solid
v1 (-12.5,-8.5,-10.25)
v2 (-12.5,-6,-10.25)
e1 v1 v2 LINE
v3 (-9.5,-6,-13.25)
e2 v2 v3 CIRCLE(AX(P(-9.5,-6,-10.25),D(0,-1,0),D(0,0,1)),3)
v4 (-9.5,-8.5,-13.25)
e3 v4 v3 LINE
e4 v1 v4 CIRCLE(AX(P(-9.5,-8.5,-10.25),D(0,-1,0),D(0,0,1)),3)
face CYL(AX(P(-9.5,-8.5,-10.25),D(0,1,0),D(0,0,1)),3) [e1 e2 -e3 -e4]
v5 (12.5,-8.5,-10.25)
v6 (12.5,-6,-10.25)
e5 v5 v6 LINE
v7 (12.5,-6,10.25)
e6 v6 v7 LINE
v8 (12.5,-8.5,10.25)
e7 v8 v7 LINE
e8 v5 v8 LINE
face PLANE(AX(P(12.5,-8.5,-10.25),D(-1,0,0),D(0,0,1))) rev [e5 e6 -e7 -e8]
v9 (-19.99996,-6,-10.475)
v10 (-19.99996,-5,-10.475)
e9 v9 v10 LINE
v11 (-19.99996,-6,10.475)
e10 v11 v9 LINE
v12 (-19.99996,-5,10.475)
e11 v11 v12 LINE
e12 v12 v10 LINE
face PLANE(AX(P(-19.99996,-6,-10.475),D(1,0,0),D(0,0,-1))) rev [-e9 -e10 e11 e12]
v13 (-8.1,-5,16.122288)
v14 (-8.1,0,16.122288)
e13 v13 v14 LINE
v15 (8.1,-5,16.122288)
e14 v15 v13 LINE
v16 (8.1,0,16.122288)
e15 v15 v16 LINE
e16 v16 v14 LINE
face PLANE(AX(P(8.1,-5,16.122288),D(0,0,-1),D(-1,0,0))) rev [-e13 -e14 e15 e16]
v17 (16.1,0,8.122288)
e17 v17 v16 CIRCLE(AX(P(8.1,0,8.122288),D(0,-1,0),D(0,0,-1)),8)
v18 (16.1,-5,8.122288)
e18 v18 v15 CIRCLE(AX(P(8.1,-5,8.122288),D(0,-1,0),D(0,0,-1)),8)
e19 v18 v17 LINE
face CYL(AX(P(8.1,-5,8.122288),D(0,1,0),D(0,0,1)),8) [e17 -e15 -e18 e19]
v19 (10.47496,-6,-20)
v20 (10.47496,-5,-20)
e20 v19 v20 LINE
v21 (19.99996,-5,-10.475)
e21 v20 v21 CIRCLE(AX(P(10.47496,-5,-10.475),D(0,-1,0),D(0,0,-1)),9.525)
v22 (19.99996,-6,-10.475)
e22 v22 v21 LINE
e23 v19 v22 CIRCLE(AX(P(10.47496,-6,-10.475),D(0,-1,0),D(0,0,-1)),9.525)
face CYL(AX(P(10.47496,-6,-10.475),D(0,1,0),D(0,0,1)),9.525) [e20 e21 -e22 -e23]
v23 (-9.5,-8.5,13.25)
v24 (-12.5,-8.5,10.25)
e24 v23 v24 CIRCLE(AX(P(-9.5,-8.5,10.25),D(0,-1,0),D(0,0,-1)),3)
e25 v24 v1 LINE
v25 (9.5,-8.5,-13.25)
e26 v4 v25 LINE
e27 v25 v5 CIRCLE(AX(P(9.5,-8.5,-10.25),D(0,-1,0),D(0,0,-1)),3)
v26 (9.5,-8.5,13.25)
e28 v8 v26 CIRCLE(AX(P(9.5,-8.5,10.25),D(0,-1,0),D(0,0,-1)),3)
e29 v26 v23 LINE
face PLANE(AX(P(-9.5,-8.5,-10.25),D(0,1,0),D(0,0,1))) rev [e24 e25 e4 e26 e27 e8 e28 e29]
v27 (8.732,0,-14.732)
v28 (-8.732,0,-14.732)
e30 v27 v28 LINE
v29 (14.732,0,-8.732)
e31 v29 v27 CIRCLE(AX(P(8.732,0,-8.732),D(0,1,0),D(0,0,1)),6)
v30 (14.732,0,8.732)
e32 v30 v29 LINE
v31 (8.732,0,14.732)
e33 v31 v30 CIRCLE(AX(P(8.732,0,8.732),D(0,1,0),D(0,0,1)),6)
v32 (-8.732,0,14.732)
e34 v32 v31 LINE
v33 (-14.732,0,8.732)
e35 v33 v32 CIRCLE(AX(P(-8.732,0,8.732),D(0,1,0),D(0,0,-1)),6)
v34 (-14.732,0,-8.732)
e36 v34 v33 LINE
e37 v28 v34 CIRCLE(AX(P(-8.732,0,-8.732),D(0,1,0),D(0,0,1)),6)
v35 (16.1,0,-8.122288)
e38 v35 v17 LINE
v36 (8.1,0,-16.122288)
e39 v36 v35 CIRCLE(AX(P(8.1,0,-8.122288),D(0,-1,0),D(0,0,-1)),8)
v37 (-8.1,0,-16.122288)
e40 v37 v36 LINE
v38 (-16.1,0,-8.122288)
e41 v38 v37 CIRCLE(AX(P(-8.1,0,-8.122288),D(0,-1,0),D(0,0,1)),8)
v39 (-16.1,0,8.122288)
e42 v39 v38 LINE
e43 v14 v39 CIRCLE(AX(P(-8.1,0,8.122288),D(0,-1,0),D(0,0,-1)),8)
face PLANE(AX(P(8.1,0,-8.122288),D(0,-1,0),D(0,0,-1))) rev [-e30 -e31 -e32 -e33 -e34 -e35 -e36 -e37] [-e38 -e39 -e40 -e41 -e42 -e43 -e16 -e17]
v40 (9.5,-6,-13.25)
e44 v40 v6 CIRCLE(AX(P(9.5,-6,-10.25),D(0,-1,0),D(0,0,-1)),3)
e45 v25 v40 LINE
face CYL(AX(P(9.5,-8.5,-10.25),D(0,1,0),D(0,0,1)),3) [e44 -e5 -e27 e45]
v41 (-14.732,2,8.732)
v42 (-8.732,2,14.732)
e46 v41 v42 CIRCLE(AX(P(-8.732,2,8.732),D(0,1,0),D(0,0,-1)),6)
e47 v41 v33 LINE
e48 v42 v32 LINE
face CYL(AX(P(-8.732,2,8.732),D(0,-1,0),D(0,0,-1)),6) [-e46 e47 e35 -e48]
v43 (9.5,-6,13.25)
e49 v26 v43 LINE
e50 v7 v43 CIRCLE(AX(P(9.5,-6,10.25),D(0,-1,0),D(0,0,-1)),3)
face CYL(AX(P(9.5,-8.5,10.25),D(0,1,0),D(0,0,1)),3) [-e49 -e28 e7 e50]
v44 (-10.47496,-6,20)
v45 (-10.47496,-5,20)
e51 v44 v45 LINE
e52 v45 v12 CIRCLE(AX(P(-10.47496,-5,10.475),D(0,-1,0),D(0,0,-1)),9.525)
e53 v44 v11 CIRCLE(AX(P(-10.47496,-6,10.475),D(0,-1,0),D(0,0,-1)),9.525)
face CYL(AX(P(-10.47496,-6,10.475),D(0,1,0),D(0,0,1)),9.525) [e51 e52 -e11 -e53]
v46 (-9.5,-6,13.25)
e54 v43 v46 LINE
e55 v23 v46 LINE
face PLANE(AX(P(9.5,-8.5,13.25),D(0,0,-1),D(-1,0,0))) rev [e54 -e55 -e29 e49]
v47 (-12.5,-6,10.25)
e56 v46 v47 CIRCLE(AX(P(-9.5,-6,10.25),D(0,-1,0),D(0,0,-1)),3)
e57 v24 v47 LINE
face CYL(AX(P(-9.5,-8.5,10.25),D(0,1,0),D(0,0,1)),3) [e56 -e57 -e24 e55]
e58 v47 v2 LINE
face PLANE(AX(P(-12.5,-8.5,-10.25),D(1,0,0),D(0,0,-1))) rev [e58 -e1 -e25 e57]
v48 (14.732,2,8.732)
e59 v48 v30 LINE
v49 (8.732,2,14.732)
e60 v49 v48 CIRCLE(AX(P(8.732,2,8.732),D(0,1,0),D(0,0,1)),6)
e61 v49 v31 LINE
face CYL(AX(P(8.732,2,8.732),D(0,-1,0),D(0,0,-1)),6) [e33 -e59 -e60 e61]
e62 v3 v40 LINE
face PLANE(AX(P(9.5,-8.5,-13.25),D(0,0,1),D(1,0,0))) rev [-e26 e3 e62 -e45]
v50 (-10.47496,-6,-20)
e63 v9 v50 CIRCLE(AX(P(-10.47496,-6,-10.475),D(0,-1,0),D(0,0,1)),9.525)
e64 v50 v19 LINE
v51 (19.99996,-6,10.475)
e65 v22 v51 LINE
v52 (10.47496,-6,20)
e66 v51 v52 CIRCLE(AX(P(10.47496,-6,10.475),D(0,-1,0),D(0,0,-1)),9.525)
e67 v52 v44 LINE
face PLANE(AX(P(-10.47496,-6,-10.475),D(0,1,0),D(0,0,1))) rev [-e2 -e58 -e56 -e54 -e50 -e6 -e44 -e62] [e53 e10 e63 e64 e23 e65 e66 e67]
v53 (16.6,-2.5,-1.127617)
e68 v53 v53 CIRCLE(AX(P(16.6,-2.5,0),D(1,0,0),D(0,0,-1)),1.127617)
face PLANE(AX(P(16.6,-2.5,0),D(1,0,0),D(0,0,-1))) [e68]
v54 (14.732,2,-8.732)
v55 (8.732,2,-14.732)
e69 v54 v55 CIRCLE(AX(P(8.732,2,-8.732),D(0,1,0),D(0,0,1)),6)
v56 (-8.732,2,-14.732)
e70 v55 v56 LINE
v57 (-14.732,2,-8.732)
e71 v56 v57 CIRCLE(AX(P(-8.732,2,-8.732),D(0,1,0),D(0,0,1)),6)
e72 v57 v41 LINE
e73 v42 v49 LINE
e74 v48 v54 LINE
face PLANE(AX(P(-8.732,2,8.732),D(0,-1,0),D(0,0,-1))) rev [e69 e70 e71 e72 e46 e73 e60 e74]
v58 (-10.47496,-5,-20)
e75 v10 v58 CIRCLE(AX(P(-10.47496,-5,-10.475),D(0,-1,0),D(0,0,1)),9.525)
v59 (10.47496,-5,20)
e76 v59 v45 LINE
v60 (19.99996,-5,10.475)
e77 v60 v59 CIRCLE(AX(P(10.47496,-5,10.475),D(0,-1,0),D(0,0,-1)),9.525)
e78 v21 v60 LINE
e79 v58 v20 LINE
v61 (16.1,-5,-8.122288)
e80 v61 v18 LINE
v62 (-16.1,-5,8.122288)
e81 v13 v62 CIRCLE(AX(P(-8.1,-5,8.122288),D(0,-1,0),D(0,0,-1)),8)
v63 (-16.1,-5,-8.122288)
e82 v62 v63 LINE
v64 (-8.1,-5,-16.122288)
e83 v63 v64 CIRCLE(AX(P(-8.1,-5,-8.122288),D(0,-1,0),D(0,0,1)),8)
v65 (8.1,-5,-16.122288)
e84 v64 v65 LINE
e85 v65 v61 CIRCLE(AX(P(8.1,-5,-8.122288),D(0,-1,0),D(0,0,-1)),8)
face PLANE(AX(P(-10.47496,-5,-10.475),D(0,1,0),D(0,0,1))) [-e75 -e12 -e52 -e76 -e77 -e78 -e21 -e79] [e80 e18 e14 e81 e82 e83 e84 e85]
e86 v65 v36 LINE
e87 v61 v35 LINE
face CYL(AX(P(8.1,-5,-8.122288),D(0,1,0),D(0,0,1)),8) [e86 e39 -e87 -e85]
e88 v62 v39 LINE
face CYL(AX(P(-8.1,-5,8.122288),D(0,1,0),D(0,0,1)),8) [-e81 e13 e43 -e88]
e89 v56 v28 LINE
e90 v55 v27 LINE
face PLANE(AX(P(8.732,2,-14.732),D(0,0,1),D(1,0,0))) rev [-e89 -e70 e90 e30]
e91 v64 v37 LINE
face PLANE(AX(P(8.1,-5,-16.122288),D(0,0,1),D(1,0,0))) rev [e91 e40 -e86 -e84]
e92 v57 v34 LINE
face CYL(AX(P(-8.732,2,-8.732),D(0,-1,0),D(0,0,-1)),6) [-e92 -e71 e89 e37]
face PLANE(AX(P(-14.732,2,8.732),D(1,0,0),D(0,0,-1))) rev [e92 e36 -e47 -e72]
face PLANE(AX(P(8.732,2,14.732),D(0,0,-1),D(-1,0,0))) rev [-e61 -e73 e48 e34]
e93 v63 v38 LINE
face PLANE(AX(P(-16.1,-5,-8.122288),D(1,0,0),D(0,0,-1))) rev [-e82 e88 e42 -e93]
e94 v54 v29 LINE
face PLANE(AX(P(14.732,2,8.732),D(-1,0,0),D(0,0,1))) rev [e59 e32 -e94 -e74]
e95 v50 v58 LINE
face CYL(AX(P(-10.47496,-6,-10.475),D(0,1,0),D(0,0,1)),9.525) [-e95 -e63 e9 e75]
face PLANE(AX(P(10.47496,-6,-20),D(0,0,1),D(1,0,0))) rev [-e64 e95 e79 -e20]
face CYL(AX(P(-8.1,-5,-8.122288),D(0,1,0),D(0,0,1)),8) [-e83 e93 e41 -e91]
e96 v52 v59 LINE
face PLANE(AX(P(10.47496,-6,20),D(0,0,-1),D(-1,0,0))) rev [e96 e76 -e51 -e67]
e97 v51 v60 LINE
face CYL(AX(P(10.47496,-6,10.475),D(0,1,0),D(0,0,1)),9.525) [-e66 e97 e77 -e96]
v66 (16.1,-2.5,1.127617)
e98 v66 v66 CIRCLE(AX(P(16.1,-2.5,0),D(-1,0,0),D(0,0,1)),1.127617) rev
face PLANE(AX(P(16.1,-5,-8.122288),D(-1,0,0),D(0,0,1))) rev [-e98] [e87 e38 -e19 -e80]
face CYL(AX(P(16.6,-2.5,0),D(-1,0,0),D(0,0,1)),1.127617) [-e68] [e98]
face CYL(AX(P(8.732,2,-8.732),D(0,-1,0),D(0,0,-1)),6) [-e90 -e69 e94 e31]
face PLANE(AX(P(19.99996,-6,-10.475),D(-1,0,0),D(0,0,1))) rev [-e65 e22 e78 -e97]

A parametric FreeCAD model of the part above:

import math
import FreeCAD as App
import Part
import Sketcher
from FreeCAD import Vector
Q = App.Units.Quantity

doc = App.newDocument("Part")
body = doc.addObject("PartDesign::Body", "Body")

sketch1 = doc.addObject("Sketcher::SketchObject", "Sketch")
body.addObject(sketch1)
sketch1.AttachmentSupport = (doc.XZ_Plane, [""])
sketch1.MapMode = "FlatFace"
sketch1.addGeometry([
    Part.LineSegment(Vector(-9, 15, 0), Vector(9, 15, 0)),
    Part.ArcOfCircle(Part.Circle(Vector(9, 9, 0), Vector(0, 0, 1), 6), math.radians(0), math.radians(90)),
    Part.LineSegment(Vector(15, 9, 0), Vector(15, -9, 0)),
    Part.ArcOfCircle(Part.Circle(Vector(9, -9, 0), Vector(0, 0, 1), 6), math.radians(-90), math.radians(0)),
    Part.LineSegment(Vector(9, -15, 0), Vector(-9, -15, 0)),
    Part.ArcOfCircle(Part.Circle(Vector(-9, -9, 0), Vector(0, 0, 1), 6), math.radians(180), math.radians(270)),
    Part.LineSegment(Vector(-15, -9, 0), Vector(-15, 9, 0)),
    Part.ArcOfCircle(Part.Circle(Vector(-9, 9, 0), Vector(0, 0, 1), 6), math.radians(90), math.radians(180)),
], False)
sketch1.addConstraint([
    Sketcher.Constraint("Tangent", 0, 2, 1, 2),
    Sketcher.Constraint("Tangent", 1, 1, 2, 1),
    Sketcher.Constraint("Tangent", 2, 2, 3, 2),
    Sketcher.Constraint("Tangent", 3, 1, 4, 1),
    Sketcher.Constraint("Tangent", 4, 2, 5, 2),
    Sketcher.Constraint("Tangent", 5, 1, 6, 1),
    Sketcher.Constraint("Tangent", 6, 2, 7, 2),
    Sketcher.Constraint("Tangent", 7, 1, 0, 1),
    Sketcher.Constraint("Horizontal", 0),
    Sketcher.Constraint("Vertical", 2),
    Sketcher.Constraint("Horizontal", 4),
    Sketcher.Constraint("Vertical", 6),
    Sketcher.Constraint("Equal", 1, 3),
    Sketcher.Constraint("Equal", 3, 5),
    Sketcher.Constraint("Equal", 5, 7),
    Sketcher.Constraint("Symmetric", 1, 3, 5, 3, -1, 1),
    Sketcher.Constraint("Equal", 4, 2),
    Sketcher.Constraint("Radius", 1, Q("6 mm")),
    Sketcher.Constraint("DistanceX", 0, 1, 0, 2, Q("17.464 mm")),
])
pad1 = doc.addObject("PartDesign::Pad", "Pad")
body.addObject(pad1)
pad1.Profile = sketch1
pad1.Length = 2
pad1.Reversed = True

sketch2 = doc.addObject("Sketcher::SketchObject", "Sketch001")
body.addObject(sketch2)
sketch2.AttachmentSupport = (doc.XZ_Plane, [""])
sketch2.MapMode = "FlatFace"
sketch2.addGeometry([
    Part.LineSegment(Vector(-8, -16, 0), Vector(8, -16, 0)),
    Part.ArcOfCircle(Part.Circle(Vector(8, -8, 0), Vector(0, 0, 1), 8), math.radians(-90), math.radians(0)),
    Part.LineSegment(Vector(16, -8, 0), Vector(16, 8, 0)),
    Part.ArcOfCircle(Part.Circle(Vector(8, 8, 0), Vector(0, 0, 1), 8), math.radians(0), math.radians(90)),
    Part.LineSegment(Vector(8, 16, 0), Vector(-8, 16, 0)),
    Part.ArcOfCircle(Part.Circle(Vector(-8, 8, 0), Vector(0, 0, 1), 8), math.radians(90), math.radians(180)),
    Part.LineSegment(Vector(-16, 8, 0), Vector(-16, -8, 0)),
    Part.ArcOfCircle(Part.Circle(Vector(-8, -8, 0), Vector(0, 0, 1), 8), math.radians(180), math.radians(270)),
], False)
sketch2.addConstraint([
    Sketcher.Constraint("Tangent", 0, 2, 1, 1),
    Sketcher.Constraint("Tangent", 1, 2, 2, 1),
    Sketcher.Constraint("Tangent", 2, 2, 3, 1),
    Sketcher.Constraint("Tangent", 3, 2, 4, 1),
    Sketcher.Constraint("Tangent", 4, 2, 5, 1),
    Sketcher.Constraint("Tangent", 5, 2, 6, 1),
    Sketcher.Constraint("Tangent", 6, 2, 7, 1),
    Sketcher.Constraint("Tangent", 7, 2, 0, 1),
    Sketcher.Constraint("Horizontal", 0),
    Sketcher.Constraint("Vertical", 2),
    Sketcher.Constraint("Horizontal", 4),
    Sketcher.Constraint("Vertical", 6),
    Sketcher.Constraint("Equal", 1, 3),
    Sketcher.Constraint("Equal", 3, 5),
    Sketcher.Constraint("Equal", 5, 7),
    Sketcher.Constraint("Symmetric", 1, 3, 5, 3, -1, 1),
    Sketcher.Constraint("Radius", 1, Q("8 mm")),
    Sketcher.Constraint("DistanceX", 0, 1, 0, 2, Q("16.2 mm")),
    Sketcher.Constraint("DistanceY", 2, 1, 2, 2, Q("16.244576 mm")),
])
pad2 = doc.addObject("PartDesign::Pad", "Pad001")
body.addObject(pad2)
pad2.Profile = sketch2
pad2.Length = 5

sketch3 = doc.addObject("Sketcher::SketchObject", "Sketch002")
body.addObject(sketch3)
sketch3.AttachmentSupport = (doc.XZ_Plane, [""])
sketch3.MapMode = "FlatFace"
sketch3.AttachmentOffset = App.Placement(Vector(0, 0, 5), App.Rotation())
sketch3.addGeometry([
    Part.LineSegment(Vector(-10, -20, 0), Vector(10, -20, 0)),
    Part.ArcOfCircle(Part.Circle(Vector(10, -10, 0), Vector(0, 0, 1), 10), math.radians(-90), math.radians(0)),
    Part.LineSegment(Vector(20, -10, 0), Vector(20, 10, 0)),
    Part.ArcOfCircle(Part.Circle(Vector(10, 10, 0), Vector(0, 0, 1), 10), math.radians(0), math.radians(90)),
    Part.LineSegment(Vector(10, 20, 0), Vector(-10, 20, 0)),
    Part.ArcOfCircle(Part.Circle(Vector(-10, 10, 0), Vector(0, 0, 1), 10), math.radians(90), math.radians(180)),
    Part.LineSegment(Vector(-20, 10, 0), Vector(-20, -10, 0)),
    Part.ArcOfCircle(Part.Circle(Vector(-10, -10, 0), Vector(0, 0, 1), 10), math.radians(180), math.radians(270)),
], False)
sketch3.addConstraint([
    Sketcher.Constraint("Tangent", 0, 2, 1, 1),
    Sketcher.Constraint("Tangent", 1, 2, 2, 1),
    Sketcher.Constraint("Tangent", 2, 2, 3, 1),
    Sketcher.Constraint("Tangent", 3, 2, 4, 1),
    Sketcher.Constraint("Tangent", 4, 2, 5, 1),
    Sketcher.Constraint("Tangent", 5, 2, 6, 1),
    Sketcher.Constraint("Tangent", 6, 2, 7, 1),
    Sketcher.Constraint("Tangent", 7, 2, 0, 1),
    Sketcher.Constraint("Horizontal", 0),
    Sketcher.Constraint("Vertical", 2),
    Sketcher.Constraint("Horizontal", 4),
    Sketcher.Constraint("Vertical", 6),
    Sketcher.Constraint("Equal", 1, 3),
    Sketcher.Constraint("Equal", 3, 5),
    Sketcher.Constraint("Equal", 5, 7),
    Sketcher.Constraint("Symmetric", 1, 3, 5, 3, -1, 1),
    Sketcher.Constraint("DistanceY", 0, 2, -1, 1, Q("20 mm")),
    Sketcher.Constraint("Radius", 1, Q("9.525 mm")),
    Sketcher.Constraint("DistanceX", 0, 1, 0, 2, Q("20.94992 mm")),
])
pad3 = doc.addObject("PartDesign::Pad", "Pad002")
body.addObject(pad3)
pad3.Profile = sketch3
pad3.Length = 1

sketch4 = doc.addObject("Sketcher::SketchObject", "Sketch003")
body.addObject(sketch4)
sketch4.AttachmentSupport = (doc.XZ_Plane, [""])
sketch4.MapMode = "FlatFace"
sketch4.AttachmentOffset = App.Placement(Vector(0, 0, 6), App.Rotation())
sketch4.addGeometry([
    Part.LineSegment(Vector(-9.5, -13.2, 0), Vector(9.5, -13.2, 0)),
    Part.ArcOfCircle(Part.Circle(Vector(9.5, -10.3, 0), Vector(0, 0, 1), 3), math.radians(-90), math.radians(0)),
    Part.LineSegment(Vector(12.5, -10.2, 0), Vector(12.5, 10.2, 0)),
    Part.ArcOfCircle(Part.Circle(Vector(9.5, 10.3, 0), Vector(0, 0, 1), 3), math.radians(0), math.radians(90)),
    Part.LineSegment(Vector(9.5, 13.2, 0), Vector(-9.5, 13.2, 0)),
    Part.ArcOfCircle(Part.Circle(Vector(-9.5, 10.3, 0), Vector(0, 0, 1), 3), math.radians(90), math.radians(180)),
    Part.LineSegment(Vector(-12.5, 10.2, 0), Vector(-12.5, -10.2, 0)),
    Part.ArcOfCircle(Part.Circle(Vector(-9.5, -10.3, 0), Vector(0, 0, 1), 3), math.radians(180), math.radians(270)),
], False)
sketch4.addConstraint([
    Sketcher.Constraint("Tangent", 0, 2, 1, 1),
    Sketcher.Constraint("Tangent", 1, 2, 2, 1),
    Sketcher.Constraint("Tangent", 2, 2, 3, 1),
    Sketcher.Constraint("Tangent", 3, 2, 4, 1),
    Sketcher.Constraint("Tangent", 4, 2, 5, 1),
    Sketcher.Constraint("Tangent", 5, 2, 6, 1),
    Sketcher.Constraint("Tangent", 6, 2, 7, 1),
    Sketcher.Constraint("Tangent", 7, 2, 0, 1),
    Sketcher.Constraint("Horizontal", 0),
    Sketcher.Constraint("Vertical", 2),
    Sketcher.Constraint("Horizontal", 4),
    Sketcher.Constraint("Vertical", 6),
    Sketcher.Constraint("Equal", 1, 3),
    Sketcher.Constraint("Equal", 3, 5),
    Sketcher.Constraint("Equal", 5, 7),
    Sketcher.Constraint("Symmetric", 1, 3, 5, 3, -1, 1),
    Sketcher.Constraint("Radius", 1, Q("3 mm")),
    Sketcher.Constraint("DistanceX", 0, 1, 0, 2, Q("19 mm")),
    Sketcher.Constraint("DistanceY", 2, 1, 2, 2, Q("20.5 mm")),
])
pad4 = doc.addObject("PartDesign::Pad", "Pad003")
body.addObject(pad4)
pad4.Profile = sketch4
pad4.Length = 2.5

sketch5 = doc.addObject("Sketcher::SketchObject", "Sketch004")
body.addObject(sketch5)
sketch5.AttachmentSupport = (doc.YZ_Plane, [""])
sketch5.MapMode = "FlatFace"
sketch5.AttachmentOffset = App.Placement(Vector(0, 0, 16.1), App.Rotation())
sketch5.addGeometry(Part.Circle(Vector(-2.5, 0, 0), Vector(0, 0, 1), 1.1), False)
sketch5.addConstraint([
    Sketcher.Constraint("PointOnObject", 0, 3, -1),
    Sketcher.Constraint("DistanceX", 0, 3, -1, 1, Q("2.5 mm")),
    Sketcher.Constraint("Diameter", 0, Q("2.255234 mm")),
])
pad5 = doc.addObject("PartDesign::Pad", "Pad004")
body.addObject(pad5)
pad5.Profile = sketch5
pad5.Length = 0.5

doc.recompute()
